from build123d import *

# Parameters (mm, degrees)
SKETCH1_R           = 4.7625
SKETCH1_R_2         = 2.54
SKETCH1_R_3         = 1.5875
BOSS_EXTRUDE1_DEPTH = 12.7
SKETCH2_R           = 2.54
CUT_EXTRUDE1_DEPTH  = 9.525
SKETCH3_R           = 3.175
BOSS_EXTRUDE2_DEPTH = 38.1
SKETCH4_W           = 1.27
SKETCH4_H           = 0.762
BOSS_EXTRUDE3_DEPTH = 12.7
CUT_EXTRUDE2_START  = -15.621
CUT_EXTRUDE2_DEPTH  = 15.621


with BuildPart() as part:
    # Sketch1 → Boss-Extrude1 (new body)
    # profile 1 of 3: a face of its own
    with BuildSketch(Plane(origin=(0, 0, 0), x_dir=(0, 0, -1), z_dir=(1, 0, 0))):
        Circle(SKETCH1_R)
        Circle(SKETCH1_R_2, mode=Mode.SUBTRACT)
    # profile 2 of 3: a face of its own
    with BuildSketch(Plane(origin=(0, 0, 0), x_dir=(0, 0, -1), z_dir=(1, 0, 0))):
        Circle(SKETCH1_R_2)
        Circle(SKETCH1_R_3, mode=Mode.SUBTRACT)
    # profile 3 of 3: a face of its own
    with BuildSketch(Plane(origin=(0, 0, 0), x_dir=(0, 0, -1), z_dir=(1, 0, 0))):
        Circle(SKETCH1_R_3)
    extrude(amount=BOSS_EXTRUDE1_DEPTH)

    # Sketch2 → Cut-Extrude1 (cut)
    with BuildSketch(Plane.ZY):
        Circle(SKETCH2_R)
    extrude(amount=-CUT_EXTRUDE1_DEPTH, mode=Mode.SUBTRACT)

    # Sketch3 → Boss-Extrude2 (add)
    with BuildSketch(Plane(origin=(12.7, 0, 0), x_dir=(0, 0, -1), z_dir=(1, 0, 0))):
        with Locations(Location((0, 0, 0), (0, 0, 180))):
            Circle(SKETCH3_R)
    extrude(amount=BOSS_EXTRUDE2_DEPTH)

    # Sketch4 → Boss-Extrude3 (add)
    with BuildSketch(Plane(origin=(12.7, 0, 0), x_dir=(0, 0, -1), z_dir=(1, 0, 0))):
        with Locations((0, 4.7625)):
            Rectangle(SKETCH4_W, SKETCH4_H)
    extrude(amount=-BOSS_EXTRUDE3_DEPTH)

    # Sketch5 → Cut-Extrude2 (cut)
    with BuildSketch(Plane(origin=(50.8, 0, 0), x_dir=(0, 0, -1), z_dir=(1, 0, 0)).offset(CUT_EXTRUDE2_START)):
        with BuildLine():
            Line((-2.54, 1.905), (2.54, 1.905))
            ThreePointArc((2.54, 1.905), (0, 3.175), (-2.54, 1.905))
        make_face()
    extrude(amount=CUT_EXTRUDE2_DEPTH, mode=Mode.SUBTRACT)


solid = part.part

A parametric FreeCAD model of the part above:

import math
import FreeCAD as App
import Part
import Sketcher
Q = App.Units.Quantity


def add_polygon(sketch, points):
    """Adds a closed chain of lines whose ends are joined by coincident constraints."""
    first, n = sketch.GeometryCount, len(points)
    for a, b in zip(points, points[1:] + points[:1]):
        sketch.addGeometry(Part.LineSegment(App.Vector(*a, 0), App.Vector(*b, 0)), False)
    for i in range(n):
        sketch.addConstraint(Sketcher.Constraint("Coincident", first + i, 2, first + (i + 1) % n, 1))

doc = App.newDocument("Part")
body = doc.addObject("PartDesign::Body", "Body")

sketch1 = body.newObject("Sketcher::SketchObject", "Sketch")
sketch1.AttachmentSupport = (doc.getObject("YZ_Plane"), [""])
sketch1.MapMode = "FlatFace"
sketch1.addGeometry(Part.Circle(App.Vector(0, 0, 0), App.Vector(0, 0, 1), 4.8), False)
sketch1.addConstraint([
    Sketcher.Constraint("Coincident", 0, 3, -1, 1),
    Sketcher.Constraint("Diameter", 0, Q("0.375 in")),
])
pad1 = body.newObject("PartDesign::Pad", "Pad")
pad1.Profile = sketch1
pad1.Length = Q("0.5 in")

sketch2 = body.newObject("Sketcher::SketchObject", "Sketch001")
sketch2.AttachmentSupport = (doc.getObject("YZ_Plane"), [""])
sketch2.MapMode = "FlatFace"
sketch2.addGeometry(Part.Circle(App.Vector(0, 0, 0), App.Vector(0, 0, 1), 2.5), False)
sketch2.addConstraint([
    Sketcher.Constraint("Coincident", 0, 3, -1, 1),
    Sketcher.Constraint("Diameter", 0, Q("0.2 in")),
])
pocket1 = body.newObject("PartDesign::Pocket", "Pocket")
pocket1.Profile = sketch2
pocket1.Length = Q("0.375 in")
pocket1.Reversed = True

sketch3 = body.newObject("Sketcher::SketchObject", "Sketch002")
sketch3.AttachmentSupport = (doc.getObject("YZ_Plane"), [""])
sketch3.MapMode = "FlatFace"
sketch3.AttachmentOffset = App.Placement(App.Vector(0, 0, 0.5 * 25.4), App.Rotation())
sketch3.addGeometry(Part.Circle(App.Vector(0, 0, 0), App.Vector(0, 0, 1), 3.2), False)
sketch3.addConstraint([
    Sketcher.Constraint("Coincident", 0, 3, -1, 1),
    Sketcher.Constraint("Diameter", 0, Q("0.25 in")),
])
pad2 = body.newObject("PartDesign::Pad", "Pad001")
pad2.Profile = sketch3
pad2.Length = Q("1.5 in")

sketch4 = body.newObject("Sketcher::SketchObject", "Sketch003")
sketch4.AttachmentSupport = (doc.getObject("YZ_Plane"), [""])
sketch4.MapMode = "FlatFace"
sketch4.AttachmentOffset = App.Placement(App.Vector(0, 0, 0.5 * 25.4), App.Rotation())
add_polygon(sketch4, [(5.1, 0.6), (4.4, 0.6), (4.4, -0.6), (5.1, -0.6)])
sketch4.addConstraint([
    Sketcher.Constraint("Horizontal", 0),
    Sketcher.Constraint("Vertical", 1),
    Sketcher.Constraint("Horizontal", 2),
    Sketcher.Constraint("Vertical", 3),
    Sketcher.Constraint("DistanceX", 0, 2, 0, 1, Q("0.03 in")),
    Sketcher.Constraint("DistanceY", 1, 2, 1, 1, Q("0.05 in")),
    Sketcher.Constraint("DistanceY", -1, 1, 0, 2, Q("0.025 in")),
    Sketcher.Constraint("DistanceX", -1, 1, 0, 2, Q("0.1725 in")),
])
pad3 = body.newObject("PartDesign::Pad", "Pad002")
pad3.Profile = sketch4
pad3.Length = Q("0.5 in")
pad3.Reversed = True

sketch5 = body.newObject("Sketcher::SketchObject", "Sketch004")
sketch5.AttachmentSupport = (doc.getObject("YZ_Plane"), [""])
sketch5.MapMode = "FlatFace"
sketch5.AttachmentOffset = App.Placement(App.Vector(0, 0, 1.385 * 25.4), App.Rotation())
sketch5.addGeometry([
    Part.LineSegment(App.Vector(1.9, 2.5, 0), App.Vector(1.9, -2.5, 0)),
    Part.ArcOfCircle(Part.Circle(App.Vector(0, 0, 0), App.Vector(0, 0, 1), 3.2), math.radians(-53), math.radians(53)),
], False)
sketch5.addConstraint([
    Sketcher.Constraint("Coincident", 0, 1, 1, 2),
    Sketcher.Constraint("Coincident", 1, 1, 0, 2),
    Sketcher.Constraint("Vertical", 0),
    Sketcher.Constraint("Coincident", 1, 3, -1, 1),
    Sketcher.Constraint("DistanceY", 0, 2, 0, 1, Q("0.2 in")),
    Sketcher.Constraint("Radius", 1, Q("0.125 in")),
])
pocket2 = body.newObject("PartDesign::Pocket", "Pocket001")
pocket2.Profile = sketch5
pocket2.Length = Q("0.615 in")
pocket2.Reversed = True

doc.recompute()
